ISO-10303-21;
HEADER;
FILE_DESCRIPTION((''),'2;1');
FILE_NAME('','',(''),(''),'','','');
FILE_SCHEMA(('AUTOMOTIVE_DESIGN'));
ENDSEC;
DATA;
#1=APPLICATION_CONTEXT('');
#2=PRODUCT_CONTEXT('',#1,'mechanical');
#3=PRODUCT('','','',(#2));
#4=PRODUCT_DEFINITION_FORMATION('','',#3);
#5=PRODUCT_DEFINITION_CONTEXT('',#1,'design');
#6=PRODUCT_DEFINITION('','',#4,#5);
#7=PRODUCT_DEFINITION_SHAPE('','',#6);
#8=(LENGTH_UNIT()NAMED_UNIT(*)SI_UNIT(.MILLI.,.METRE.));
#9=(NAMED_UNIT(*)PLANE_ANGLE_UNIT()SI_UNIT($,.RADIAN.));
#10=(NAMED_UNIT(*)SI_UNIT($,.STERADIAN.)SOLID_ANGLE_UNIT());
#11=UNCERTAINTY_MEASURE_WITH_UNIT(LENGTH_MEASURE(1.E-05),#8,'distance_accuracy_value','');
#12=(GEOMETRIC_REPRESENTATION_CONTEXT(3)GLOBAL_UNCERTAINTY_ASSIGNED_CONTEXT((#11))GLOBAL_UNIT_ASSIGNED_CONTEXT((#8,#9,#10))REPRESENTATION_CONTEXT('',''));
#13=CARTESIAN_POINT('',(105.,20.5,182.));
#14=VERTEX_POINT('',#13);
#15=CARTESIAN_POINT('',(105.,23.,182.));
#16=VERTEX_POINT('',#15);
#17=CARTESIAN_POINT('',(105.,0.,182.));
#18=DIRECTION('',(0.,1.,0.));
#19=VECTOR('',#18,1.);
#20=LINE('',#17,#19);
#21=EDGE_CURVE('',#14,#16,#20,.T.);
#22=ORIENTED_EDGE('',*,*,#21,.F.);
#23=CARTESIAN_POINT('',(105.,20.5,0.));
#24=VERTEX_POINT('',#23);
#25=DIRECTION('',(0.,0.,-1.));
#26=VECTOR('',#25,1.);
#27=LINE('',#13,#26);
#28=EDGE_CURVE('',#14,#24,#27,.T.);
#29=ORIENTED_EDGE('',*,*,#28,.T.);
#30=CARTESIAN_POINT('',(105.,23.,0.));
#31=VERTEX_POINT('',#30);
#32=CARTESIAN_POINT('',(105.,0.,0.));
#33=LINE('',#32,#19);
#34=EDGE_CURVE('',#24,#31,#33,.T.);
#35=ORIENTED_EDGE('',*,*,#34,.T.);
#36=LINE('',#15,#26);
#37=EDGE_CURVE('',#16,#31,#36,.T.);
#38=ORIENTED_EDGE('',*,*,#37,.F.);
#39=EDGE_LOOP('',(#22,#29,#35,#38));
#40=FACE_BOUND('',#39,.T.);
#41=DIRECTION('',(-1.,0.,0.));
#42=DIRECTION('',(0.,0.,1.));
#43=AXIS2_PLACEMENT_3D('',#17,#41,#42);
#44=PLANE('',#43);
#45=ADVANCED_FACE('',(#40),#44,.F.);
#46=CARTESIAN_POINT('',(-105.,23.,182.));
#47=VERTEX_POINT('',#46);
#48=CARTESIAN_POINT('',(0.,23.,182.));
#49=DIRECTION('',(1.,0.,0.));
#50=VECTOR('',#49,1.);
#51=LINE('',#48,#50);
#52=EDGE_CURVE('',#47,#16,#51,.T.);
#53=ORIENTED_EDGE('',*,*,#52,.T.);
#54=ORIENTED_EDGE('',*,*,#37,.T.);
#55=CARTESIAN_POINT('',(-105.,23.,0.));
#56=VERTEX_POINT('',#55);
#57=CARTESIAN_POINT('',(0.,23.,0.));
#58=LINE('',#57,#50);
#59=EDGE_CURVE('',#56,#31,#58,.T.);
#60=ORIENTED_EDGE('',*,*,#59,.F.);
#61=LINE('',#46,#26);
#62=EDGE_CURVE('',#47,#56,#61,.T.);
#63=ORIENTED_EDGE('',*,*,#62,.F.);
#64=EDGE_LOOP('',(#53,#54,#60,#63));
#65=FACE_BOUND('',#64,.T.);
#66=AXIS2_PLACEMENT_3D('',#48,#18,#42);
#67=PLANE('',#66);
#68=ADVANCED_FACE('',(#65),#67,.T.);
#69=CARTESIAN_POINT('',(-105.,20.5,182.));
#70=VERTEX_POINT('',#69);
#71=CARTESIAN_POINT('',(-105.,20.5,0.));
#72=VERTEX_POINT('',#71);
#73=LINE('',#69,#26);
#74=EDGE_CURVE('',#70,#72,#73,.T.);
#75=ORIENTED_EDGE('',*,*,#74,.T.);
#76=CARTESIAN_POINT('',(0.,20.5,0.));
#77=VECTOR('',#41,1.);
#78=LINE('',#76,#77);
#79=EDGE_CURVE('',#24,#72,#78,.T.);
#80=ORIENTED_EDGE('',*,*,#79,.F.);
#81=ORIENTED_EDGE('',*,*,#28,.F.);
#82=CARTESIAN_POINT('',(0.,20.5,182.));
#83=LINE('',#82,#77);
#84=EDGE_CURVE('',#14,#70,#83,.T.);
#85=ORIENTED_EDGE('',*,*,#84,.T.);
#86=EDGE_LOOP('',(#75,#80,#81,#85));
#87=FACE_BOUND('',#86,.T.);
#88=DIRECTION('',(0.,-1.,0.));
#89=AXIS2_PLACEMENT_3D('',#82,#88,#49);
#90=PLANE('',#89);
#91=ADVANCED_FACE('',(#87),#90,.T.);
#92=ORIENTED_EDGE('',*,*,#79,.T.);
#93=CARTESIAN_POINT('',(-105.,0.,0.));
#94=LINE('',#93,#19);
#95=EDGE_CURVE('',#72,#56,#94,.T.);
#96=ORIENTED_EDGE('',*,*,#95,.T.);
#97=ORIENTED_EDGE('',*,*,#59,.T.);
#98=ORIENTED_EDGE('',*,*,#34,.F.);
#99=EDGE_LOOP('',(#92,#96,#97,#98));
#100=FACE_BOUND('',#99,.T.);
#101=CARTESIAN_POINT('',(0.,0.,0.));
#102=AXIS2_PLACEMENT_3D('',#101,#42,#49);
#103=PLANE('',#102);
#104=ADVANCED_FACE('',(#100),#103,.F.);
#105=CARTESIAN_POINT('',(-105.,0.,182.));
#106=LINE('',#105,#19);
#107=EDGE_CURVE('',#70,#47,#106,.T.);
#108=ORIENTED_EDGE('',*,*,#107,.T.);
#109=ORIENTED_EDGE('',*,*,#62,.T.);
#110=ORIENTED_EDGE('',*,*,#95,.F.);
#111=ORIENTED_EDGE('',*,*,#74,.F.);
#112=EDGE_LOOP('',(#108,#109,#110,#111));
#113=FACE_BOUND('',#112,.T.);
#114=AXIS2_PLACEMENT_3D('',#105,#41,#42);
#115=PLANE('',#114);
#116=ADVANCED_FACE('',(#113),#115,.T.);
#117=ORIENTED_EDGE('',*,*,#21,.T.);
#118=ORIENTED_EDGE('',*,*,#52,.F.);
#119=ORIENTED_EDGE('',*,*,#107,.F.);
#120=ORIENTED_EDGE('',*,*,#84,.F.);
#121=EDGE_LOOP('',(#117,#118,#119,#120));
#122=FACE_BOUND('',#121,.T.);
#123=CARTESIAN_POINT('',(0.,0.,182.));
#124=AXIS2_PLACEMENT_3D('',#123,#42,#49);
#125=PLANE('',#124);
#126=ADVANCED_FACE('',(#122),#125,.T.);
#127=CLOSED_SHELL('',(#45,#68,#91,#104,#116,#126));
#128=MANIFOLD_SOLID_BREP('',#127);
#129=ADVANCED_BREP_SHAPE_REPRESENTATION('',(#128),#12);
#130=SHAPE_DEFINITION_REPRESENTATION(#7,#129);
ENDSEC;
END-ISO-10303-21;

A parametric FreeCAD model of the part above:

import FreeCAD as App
import Part
import Sketcher
Q = App.Units.Quantity


def add_polygon(sketch, points):
    """Adds a closed chain of lines whose ends are joined by coincident constraints."""
    first, n = sketch.GeometryCount, len(points)
    for a, b in zip(points, points[1:] + points[:1]):
        sketch.addGeometry(Part.LineSegment(App.Vector(*a, 0), App.Vector(*b, 0)), False)
    for i in range(n):
        sketch.addConstraint(Sketcher.Constraint("Coincident", first + i, 2, first + (i + 1) % n, 1))

doc = App.newDocument("Part")
body = doc.addObject("PartDesign::Body", "Body")

sketch1 = body.newObject("Sketcher::SketchObject", "Sketch")
sketch1.AttachmentSupport = (doc.getObject("XY_Plane"), [""])
sketch1.MapMode = "FlatFace"
add_polygon(sketch1, [(-105, 20.5), (105, 20.5), (105, 23), (-105, 23)])
sketch1.addConstraint(Sketcher.Constraint("Horizontal", 0))
sketch1.addConstraint(Sketcher.Constraint("Vertical", 1))
sketch1.addConstraint(Sketcher.Constraint("Horizontal", 2))
sketch1.addConstraint(Sketcher.Constraint("Vertical", 3))
sketch1.addConstraint(Sketcher.Constraint("DistanceX", 0, 1, 0, 2, Q("210 mm")))
sketch1.addConstraint(Sketcher.Constraint("DistanceY", 1, 1, 1, 2, Q("2.5 mm")))
sketch1.addConstraint(Sketcher.Constraint("DistanceX", -1, 1, 0, 2, Q("105 mm")))
sketch1.addConstraint(Sketcher.Constraint("DistanceY", -1, 1, 1, 2, Q("23 mm")))
pad1 = body.newObject("PartDesign::Pad", "Pad")
pad1.Profile = sketch1
pad1.Length = 182

doc.recompute()
